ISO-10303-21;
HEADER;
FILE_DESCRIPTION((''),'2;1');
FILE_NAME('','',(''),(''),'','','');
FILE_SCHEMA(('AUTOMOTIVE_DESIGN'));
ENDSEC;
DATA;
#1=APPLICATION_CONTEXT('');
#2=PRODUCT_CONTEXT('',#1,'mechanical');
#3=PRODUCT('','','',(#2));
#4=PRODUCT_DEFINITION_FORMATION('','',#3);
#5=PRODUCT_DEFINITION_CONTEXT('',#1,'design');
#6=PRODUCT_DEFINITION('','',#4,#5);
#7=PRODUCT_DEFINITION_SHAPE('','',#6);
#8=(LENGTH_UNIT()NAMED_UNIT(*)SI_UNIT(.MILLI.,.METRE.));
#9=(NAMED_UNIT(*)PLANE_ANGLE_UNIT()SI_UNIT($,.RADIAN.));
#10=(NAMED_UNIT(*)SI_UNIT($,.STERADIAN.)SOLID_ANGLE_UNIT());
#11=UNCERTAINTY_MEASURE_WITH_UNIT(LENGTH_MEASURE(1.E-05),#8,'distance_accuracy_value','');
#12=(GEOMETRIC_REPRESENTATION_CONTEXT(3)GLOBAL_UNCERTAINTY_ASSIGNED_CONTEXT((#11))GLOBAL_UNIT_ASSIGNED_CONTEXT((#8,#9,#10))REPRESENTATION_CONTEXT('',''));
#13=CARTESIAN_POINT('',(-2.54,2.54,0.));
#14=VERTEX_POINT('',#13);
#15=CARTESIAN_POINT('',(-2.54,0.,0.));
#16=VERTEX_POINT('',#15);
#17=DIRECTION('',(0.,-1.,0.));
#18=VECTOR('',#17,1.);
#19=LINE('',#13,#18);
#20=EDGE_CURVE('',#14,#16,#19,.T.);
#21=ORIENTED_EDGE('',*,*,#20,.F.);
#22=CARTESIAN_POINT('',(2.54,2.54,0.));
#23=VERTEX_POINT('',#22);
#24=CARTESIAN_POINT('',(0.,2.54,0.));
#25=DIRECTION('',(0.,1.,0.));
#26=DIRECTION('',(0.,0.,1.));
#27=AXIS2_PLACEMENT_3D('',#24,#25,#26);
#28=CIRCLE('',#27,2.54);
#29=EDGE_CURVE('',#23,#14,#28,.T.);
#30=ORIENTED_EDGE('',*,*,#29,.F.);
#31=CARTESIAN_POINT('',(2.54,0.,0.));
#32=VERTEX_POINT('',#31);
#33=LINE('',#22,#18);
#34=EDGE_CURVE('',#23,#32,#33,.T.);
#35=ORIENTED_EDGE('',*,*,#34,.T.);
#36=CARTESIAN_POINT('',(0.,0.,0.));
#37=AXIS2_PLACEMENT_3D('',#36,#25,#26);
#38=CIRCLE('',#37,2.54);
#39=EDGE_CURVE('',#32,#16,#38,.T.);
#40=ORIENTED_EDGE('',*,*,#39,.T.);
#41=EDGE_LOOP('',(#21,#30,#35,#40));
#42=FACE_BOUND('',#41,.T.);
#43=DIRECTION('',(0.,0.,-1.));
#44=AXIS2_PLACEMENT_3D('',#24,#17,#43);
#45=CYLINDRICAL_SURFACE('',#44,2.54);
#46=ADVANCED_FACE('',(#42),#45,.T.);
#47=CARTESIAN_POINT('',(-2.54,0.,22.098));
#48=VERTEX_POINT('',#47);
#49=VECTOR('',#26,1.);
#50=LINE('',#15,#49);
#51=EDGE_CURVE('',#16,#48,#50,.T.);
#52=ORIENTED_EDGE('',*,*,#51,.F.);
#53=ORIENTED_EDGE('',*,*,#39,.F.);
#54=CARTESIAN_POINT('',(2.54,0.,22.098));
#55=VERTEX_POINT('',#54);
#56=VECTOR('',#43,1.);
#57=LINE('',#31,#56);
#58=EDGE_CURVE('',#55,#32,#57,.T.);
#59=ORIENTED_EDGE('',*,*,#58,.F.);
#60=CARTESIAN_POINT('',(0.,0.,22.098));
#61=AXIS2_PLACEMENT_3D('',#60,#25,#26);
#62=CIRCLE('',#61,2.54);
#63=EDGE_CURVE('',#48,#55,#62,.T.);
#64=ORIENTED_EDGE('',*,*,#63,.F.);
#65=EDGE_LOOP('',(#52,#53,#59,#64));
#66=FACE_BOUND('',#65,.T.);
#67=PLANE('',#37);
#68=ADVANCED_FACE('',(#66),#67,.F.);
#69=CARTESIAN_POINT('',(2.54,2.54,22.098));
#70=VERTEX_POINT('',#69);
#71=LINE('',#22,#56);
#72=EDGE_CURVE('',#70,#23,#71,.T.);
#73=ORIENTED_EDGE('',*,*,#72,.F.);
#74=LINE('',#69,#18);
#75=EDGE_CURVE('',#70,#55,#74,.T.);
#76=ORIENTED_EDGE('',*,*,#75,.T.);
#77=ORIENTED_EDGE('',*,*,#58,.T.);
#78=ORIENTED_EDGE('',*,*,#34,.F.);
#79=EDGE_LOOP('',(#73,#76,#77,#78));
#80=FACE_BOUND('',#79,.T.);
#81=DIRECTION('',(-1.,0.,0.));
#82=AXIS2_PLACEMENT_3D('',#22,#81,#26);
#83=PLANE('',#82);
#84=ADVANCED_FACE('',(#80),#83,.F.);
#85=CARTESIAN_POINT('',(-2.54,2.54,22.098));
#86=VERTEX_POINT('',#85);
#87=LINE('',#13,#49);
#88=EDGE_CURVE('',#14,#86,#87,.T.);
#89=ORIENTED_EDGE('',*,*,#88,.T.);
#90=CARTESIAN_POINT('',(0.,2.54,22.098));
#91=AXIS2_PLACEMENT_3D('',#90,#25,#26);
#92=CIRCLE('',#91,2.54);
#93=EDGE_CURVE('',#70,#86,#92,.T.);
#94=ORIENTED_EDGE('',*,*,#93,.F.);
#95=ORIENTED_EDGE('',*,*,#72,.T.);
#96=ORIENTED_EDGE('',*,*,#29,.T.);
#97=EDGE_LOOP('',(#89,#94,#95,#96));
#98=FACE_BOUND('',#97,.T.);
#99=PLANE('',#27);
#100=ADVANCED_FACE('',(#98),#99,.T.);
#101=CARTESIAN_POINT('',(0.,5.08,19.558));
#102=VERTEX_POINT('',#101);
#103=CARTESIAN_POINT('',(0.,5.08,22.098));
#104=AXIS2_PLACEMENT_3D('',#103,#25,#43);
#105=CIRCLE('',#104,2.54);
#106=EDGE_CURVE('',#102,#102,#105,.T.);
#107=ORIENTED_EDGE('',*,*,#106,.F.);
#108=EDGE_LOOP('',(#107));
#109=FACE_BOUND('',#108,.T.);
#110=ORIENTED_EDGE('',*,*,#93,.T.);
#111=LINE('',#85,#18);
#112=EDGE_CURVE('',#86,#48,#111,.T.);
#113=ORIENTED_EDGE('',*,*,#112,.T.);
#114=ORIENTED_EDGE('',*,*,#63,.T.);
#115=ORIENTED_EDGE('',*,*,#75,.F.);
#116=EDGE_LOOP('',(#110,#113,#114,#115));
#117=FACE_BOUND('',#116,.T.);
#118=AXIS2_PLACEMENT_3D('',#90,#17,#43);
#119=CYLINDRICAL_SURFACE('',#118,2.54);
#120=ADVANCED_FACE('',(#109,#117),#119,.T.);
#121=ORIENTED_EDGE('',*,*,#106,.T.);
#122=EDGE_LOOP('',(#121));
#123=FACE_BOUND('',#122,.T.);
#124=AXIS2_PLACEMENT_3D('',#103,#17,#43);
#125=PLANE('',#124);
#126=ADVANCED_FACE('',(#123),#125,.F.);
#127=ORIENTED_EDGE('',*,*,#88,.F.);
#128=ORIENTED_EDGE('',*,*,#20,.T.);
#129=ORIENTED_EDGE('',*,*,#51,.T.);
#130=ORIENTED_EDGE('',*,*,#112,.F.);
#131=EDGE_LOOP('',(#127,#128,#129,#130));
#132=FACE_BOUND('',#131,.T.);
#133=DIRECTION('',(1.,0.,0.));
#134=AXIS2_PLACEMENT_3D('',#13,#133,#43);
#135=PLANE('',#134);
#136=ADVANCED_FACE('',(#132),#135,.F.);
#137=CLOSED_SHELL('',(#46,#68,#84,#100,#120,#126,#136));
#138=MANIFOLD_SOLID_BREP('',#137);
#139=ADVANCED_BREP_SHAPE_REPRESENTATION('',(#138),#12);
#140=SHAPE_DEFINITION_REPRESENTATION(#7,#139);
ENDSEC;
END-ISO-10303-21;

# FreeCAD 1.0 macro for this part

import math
import FreeCAD as App
import Part
import Sketcher
from FreeCAD import Vector
Q = App.Units.Quantity

doc = App.newDocument("Part")
params = doc.addObject("Spreadsheet::Sheet", "Params")
for row, (alias, value) in enumerate([
    ("sketch1_radius", "0.1 in"),
    ("sketch1_height", "0.87 in"),
    ("pad1_length", "0.1 in"),
    ("sketch2_diameter", "0.2 in"),
    ("pad2_length", "0.1 in"),
], start=1):
    params.set(f"A{row}", alias)
    params.set(f"B{row}", "=" + value)
    params.setAlias(f"B{row}", alias)

body = doc.addObject("PartDesign::Body", "Body")

sketch1 = body.newObject("Sketcher::SketchObject", "Sketch")
sketch1.AttachmentSupport = (doc.getObject("XZ_Plane"), [""])
sketch1.MapMode = "FlatFace"
sketch1.addGeometry(Part.LineSegment(Vector(2.5, 22.1, 0), Vector(2.5, 0, 0)), False)
sketch1.addGeometry(Part.ArcOfCircle(Part.Circle(Vector(0, 0, 0), Vector(0, 0, 1), 2.5), math.radians(180), math.radians(360)), False)
sketch1.addGeometry(Part.LineSegment(Vector(-2.5, 0, 0), Vector(-2.5, 22.1, 0)), False)
sketch1.addGeometry(Part.ArcOfCircle(Part.Circle(Vector(0, 22.1, 0), Vector(0, 0, 1), 2.5), math.radians(0), math.radians(180)), False)
sketch1.addConstraint(Sketcher.Constraint("Tangent", 0, 2, 1, 2))
sketch1.addConstraint(Sketcher.Constraint("Tangent", 1, 1, 2, 1))
sketch1.addConstraint(Sketcher.Constraint("Tangent", 2, 2, 3, 2))
sketch1.addConstraint(Sketcher.Constraint("Tangent", 3, 1, 0, 1))
sketch1.addConstraint(Sketcher.Constraint("Vertical", 0))
sketch1.addConstraint(Sketcher.Constraint("Vertical", 2))
sketch1.addConstraint(Sketcher.Constraint("Coincident", 1, 3, -1, 1))
sketch1.addConstraint(Sketcher.Constraint("Radius", 1, Q("0.1 in")))
sketch1.addConstraint(Sketcher.Constraint("DistanceY", 0, 2, 0, 1, Q("0.87 in")))
sketch1.setExpression("Constraints[7]", "Params.sketch1_radius")
sketch1.setExpression("Constraints[8]", "Params.sketch1_height")
pad1 = body.newObject("PartDesign::Pad", "Pad")
pad1.Profile = sketch1
pad1.setExpression("Length", "Params.pad1_length")
pad1.Reversed = True

sketch2 = body.newObject("Sketcher::SketchObject", "Sketch001")
sketch2.AttachmentSupport = (doc.getObject("XZ_Plane"), [""])
sketch2.MapMode = "FlatFace"
sketch2.AttachmentOffset = App.Placement(Vector(0, 0, -0.1 * 25.4), App.Rotation())
sketch2.addGeometry(Part.Circle(Vector(0, 22.1, 0), Vector(0, 0, 1), 2.5), False)
sketch2.addConstraint(Sketcher.Constraint("PointOnObject", 0, 3, -2))
sketch2.addConstraint(Sketcher.Constraint("Diameter", 0, Q("0.2 in")))
sketch2.addConstraint(Sketcher.Constraint("DistanceY", -1, 1, 0, 3, Q("0.87 in")))
sketch2.setExpression("Constraints[1]", "Params.sketch2_diameter")
pad2 = body.newObject("PartDesign::Pad", "Pad001")
pad2.Profile = sketch2
pad2.setExpression("Length", "Params.pad2_length")
pad2.Reversed = True

doc.recompute()
